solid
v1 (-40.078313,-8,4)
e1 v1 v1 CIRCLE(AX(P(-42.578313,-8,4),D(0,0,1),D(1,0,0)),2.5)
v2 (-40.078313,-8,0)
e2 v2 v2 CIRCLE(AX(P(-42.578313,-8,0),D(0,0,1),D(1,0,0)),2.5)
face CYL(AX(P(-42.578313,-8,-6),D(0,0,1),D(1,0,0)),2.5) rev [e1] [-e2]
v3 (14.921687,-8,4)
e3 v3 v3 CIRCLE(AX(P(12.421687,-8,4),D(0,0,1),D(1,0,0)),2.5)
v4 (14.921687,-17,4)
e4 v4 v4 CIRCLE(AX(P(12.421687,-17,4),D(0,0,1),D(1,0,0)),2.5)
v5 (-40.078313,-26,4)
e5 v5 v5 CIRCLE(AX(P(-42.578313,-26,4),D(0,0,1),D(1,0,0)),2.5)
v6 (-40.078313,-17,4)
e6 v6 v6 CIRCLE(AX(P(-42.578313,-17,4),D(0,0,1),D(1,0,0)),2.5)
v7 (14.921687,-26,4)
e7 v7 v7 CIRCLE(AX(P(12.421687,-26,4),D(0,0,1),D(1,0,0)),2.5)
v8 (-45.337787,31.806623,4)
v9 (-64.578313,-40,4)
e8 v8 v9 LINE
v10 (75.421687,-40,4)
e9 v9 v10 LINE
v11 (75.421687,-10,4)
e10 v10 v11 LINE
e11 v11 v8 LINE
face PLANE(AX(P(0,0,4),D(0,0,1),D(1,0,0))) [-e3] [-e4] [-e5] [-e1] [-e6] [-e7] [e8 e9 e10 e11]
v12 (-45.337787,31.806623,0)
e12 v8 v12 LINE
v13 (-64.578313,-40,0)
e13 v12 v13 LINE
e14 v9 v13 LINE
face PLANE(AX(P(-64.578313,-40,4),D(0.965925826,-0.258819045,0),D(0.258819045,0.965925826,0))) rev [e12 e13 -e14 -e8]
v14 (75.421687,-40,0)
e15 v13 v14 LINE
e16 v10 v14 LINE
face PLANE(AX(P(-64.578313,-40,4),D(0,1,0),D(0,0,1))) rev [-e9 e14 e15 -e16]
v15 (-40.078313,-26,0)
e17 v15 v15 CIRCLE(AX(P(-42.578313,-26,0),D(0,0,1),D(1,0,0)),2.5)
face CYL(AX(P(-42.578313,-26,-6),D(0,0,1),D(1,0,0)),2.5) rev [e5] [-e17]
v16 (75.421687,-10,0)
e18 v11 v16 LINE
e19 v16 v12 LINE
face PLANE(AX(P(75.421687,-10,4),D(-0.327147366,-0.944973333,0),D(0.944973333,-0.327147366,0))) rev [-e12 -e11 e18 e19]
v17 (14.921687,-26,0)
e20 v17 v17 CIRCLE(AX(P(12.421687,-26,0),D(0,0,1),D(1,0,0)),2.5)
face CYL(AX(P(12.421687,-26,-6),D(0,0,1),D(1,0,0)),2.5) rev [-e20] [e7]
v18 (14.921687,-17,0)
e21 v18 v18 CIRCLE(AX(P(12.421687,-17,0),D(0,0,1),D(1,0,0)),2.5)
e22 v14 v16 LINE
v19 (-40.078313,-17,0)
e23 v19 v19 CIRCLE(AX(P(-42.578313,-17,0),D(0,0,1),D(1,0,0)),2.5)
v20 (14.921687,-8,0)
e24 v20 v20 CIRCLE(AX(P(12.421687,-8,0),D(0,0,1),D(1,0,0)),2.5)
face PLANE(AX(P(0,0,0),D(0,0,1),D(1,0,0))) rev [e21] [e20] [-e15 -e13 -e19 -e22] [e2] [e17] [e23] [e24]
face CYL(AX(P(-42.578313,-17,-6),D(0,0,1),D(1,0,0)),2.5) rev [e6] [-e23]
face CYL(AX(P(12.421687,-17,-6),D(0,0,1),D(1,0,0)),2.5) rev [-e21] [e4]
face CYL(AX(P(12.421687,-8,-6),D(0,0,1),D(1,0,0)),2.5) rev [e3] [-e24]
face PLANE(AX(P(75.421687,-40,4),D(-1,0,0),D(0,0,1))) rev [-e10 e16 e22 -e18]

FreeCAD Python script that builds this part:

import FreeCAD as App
import Part
import Sketcher

V = App.Vector
Q = App.Units.Quantity

doc = App.newDocument("Part")
body = doc.addObject("PartDesign::Body", "Body")

# Sketch on XY plane
sketch1 = body.newObject("Sketcher::SketchObject", "Sketch")
sketch1.AttachmentSupport = (doc.getObject("XY_Plane"), [""])
sketch1.MapMode = "FlatFace"
sketch1.addGeometry(Part.LineSegment(V(75, -40, 0), V(75, -10, 0)), False)
sketch1.addGeometry(Part.LineSegment(V(75, -10, 0), V(-45, 32, 0)), False)
sketch1.addGeometry(Part.LineSegment(V(-45, 32, 0), V(-65, -40, 0)), False)
sketch1.addGeometry(Part.LineSegment(V(-65, -40, 0), V(75, -40, 0)), False)
sketch1.addConstraint(Sketcher.Constraint("Coincident", 0, 2, 1, 1))
sketch1.addConstraint(Sketcher.Constraint("Coincident", 1, 2, 2, 1))
sketch1.addConstraint(Sketcher.Constraint("Coincident", 2, 2, 3, 1))
sketch1.addConstraint(Sketcher.Constraint("Coincident", 3, 2, 0, 1))
sketch1.addConstraint(Sketcher.Constraint("Vertical", 0))
sketch1.addConstraint(Sketcher.Constraint("Horizontal", 3))
sketch1.addConstraint(Sketcher.Constraint("DistanceX", 3, 1, 3, 2, Q("140 mm")))
sketch1.addConstraint(Sketcher.Constraint("DistanceY", 0, 1, 0, 2, Q("30 mm")))
sketch1.addConstraint(Sketcher.Constraint("Angle", 2, Q("-105 deg")))
sketch1.addConstraint(Sketcher.Constraint("DistanceY", 0, 2, -1, 1, Q("10 mm")))
sketch1.addConstraint(Sketcher.Constraint("Distance", 1, Q("127.791409 mm")))
sketch1.addConstraint(Sketcher.Constraint("DistanceX", -1, 1, 0, 2, Q("75.421687 mm")))
pad1 = body.newObject("PartDesign::Pad", "Pad")
pad1.Profile = sketch1
pad1.Length = 4

# Sketch on XY plane
sketch2 = body.newObject("Sketcher::SketchObject", "Sketch001")
sketch2.AttachmentSupport = (doc.getObject("XY_Plane"), [""])
sketch2.MapMode = "FlatFace"
sketch2.AttachmentOffset = App.Placement(V(0, 0, 4), App.Rotation())
sketch2.addGeometry(Part.Circle(V(-42.6, -17, 0), V(0, 0, 1), 2.5), False)
sketch2.addGeometry(Part.Circle(V(-42.6, -8, 0), V(0, 0, 1), 2.5), False)
sketch2.addGeometry(Part.Circle(V(-42.6, -26, 0), V(0, 0, 1), 2.5), False)
sketch2.addGeometry(Part.Circle(V(12.4, -17, 0), V(0, 0, 1), 2.5), False)
sketch2.addGeometry(Part.Circle(V(12.4, -8, 0), V(0, 0, 1), 2.5), False)
sketch2.addGeometry(Part.Circle(V(12.4, -26, 0), V(0, 0, 1), 2.5), False)
sketch2.addConstraint(Sketcher.Constraint("Equal", 0, 1))
sketch2.addConstraint(Sketcher.Constraint("Equal", 1, 2))
sketch2.addConstraint(Sketcher.Constraint("Equal", 2, 3))
sketch2.addConstraint(Sketcher.Constraint("Equal", 3, 4))
sketch2.addConstraint(Sketcher.Constraint("Equal", 4, 5))
sketch2.addConstraint(Sketcher.Constraint("Horizontal", 0, 3, 3, 3))
sketch2.addConstraint(Sketcher.Constraint("Horizontal", 1, 3, 4, 3))
sketch2.addConstraint(Sketcher.Constraint("Horizontal", 2, 3, 5, 3))
sketch2.addConstraint(Sketcher.Constraint("Vertical", 0, 3, 1, 3))
sketch2.addConstraint(Sketcher.Constraint("Vertical", 1, 3, 2, 3))
sketch2.addConstraint(Sketcher.Constraint("Vertical", 3, 3, 4, 3))
sketch2.addConstraint(Sketcher.Constraint("Vertical", 4, 3, 5, 3))
sketch2.addConstraint(Sketcher.Constraint("Diameter", 0, Q("5 mm")))
sketch2.addConstraint(Sketcher.Constraint("DistanceY", 0, 3, -1, 1, Q("17 mm")))
sketch2.addConstraint(Sketcher.Constraint("DistanceY", 1, 3, -1, 1, Q("8 mm")))
sketch2.addConstraint(Sketcher.Constraint("DistanceY", 2, 3, -1, 1, Q("26 mm")))
sketch2.addConstraint(Sketcher.Constraint("DistanceX", 0, 3, 3, 3, Q("55 mm")))
sketch2.addConstraint(Sketcher.Constraint("DistanceX", 0, 3, -1, 1, Q("42.578313 mm")))
pocket1 = body.newObject("PartDesign::Pocket", "Pocket")
pocket1.Profile = sketch2
pocket1.Length = 10

doc.recompute()
